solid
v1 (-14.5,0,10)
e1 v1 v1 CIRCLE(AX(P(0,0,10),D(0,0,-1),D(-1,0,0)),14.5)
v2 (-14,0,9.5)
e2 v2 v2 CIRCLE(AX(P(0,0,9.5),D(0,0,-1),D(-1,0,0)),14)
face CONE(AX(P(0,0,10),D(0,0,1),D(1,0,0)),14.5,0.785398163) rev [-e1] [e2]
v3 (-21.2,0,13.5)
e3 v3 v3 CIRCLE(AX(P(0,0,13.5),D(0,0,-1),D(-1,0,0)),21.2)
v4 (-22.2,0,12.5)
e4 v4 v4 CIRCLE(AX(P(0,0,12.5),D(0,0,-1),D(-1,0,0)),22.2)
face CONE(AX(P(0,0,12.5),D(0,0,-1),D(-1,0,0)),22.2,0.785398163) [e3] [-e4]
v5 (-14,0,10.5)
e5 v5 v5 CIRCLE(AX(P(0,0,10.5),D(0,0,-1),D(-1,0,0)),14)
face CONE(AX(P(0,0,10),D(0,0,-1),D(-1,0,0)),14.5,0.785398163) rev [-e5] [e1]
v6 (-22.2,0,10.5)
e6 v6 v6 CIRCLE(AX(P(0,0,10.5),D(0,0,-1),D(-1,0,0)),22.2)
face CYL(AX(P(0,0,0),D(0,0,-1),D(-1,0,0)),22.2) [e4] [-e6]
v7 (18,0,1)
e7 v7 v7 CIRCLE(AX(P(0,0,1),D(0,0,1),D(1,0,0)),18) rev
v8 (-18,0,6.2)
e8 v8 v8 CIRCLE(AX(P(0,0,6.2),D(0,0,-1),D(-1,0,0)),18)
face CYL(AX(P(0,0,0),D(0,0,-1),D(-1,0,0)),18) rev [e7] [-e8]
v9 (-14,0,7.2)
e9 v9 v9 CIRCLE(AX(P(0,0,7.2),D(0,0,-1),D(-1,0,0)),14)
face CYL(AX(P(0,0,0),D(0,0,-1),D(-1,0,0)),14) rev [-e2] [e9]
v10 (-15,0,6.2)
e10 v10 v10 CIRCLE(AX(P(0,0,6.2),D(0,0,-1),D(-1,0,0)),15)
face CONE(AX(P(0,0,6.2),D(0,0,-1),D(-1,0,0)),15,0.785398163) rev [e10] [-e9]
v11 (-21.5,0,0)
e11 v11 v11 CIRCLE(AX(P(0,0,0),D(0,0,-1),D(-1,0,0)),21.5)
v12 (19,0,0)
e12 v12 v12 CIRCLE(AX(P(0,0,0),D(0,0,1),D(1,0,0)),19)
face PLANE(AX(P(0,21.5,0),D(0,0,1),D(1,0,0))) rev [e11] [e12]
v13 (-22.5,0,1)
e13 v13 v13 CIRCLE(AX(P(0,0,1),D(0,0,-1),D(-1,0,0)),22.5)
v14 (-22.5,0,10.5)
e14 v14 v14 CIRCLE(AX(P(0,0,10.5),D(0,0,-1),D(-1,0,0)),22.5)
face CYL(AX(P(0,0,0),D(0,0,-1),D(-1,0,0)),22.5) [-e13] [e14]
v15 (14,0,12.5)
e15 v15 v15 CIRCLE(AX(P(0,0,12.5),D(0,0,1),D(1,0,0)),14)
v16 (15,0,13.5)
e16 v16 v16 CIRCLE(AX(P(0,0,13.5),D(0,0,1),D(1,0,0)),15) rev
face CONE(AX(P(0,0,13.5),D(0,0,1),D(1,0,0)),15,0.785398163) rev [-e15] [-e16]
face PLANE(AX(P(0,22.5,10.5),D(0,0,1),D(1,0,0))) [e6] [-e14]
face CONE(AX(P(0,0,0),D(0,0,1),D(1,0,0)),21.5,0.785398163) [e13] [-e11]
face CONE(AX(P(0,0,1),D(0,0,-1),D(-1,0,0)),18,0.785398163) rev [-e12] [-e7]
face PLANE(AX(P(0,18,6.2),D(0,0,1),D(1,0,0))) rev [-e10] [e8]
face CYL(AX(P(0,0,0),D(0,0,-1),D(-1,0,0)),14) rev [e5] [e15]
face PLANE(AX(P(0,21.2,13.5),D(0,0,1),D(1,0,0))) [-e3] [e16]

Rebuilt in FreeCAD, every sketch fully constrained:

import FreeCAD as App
import Part
import Sketcher
Q = App.Units.Quantity


def edges_at(feature, points):
    """Names of the edges that pass closest to the given points."""
    edges = feature.Shape.Edges
    near = lambda p: min(range(len(edges)), key=lambda i: edges[i].distToShape(Part.Vertex(*p))[0])
    return sorted({f"Edge{near(p) + 1}" for p in points})


def add_polygon(sketch, points):
    """Adds a closed chain of lines whose ends are joined by coincident constraints."""
    first, n = sketch.GeometryCount, len(points)
    for a, b in zip(points, points[1:] + points[:1]):
        sketch.addGeometry(Part.LineSegment(App.Vector(*a, 0), App.Vector(*b, 0)), False)
    for i in range(n):
        sketch.addConstraint(Sketcher.Constraint("Coincident", first + i, 2, first + (i + 1) % n, 1))

doc = App.newDocument("Part")
body = doc.addObject("PartDesign::Body", "Body")

# Sketch on YZ plane
sketch1 = doc.addObject("Sketcher::SketchObject", "Sketch")
body.addObject(sketch1)
sketch1.AttachmentSupport = (doc.YZ_Plane, [""])
sketch1.MapMode = "FlatFace"
add_polygon(sketch1, [(0, 13.5), (0, 0), (21.5, 0), (22.5, 1), (22.5, 10.5), (22.2, 10.5), (22.2, 12.5), (21.2, 13.5)])  # lines 0-7
sketch1.addConstraint([
    Sketcher.Constraint("Vertical", 0),
    Sketcher.Constraint("Horizontal", 1),
    Sketcher.Constraint("Vertical", 3),
    Sketcher.Constraint("Horizontal", 4),
    Sketcher.Constraint("Vertical", 5),
    Sketcher.Constraint("Horizontal", 7),
    Sketcher.Constraint("Coincident", 0, 2, -1, 1),
    Sketcher.Constraint("Perpendicular", 2, 6),
    Sketcher.Constraint("Equal", 2, 6),
    Sketcher.Constraint("DistanceY", 5, 1, 5, 2, 2.0),
    Sketcher.Constraint("Angle", 2, Q("45 deg")),
    Sketcher.Constraint("DistanceX", 1, 1, 1, 2, 21.5),
    Sketcher.Constraint("DistanceX", 4, 2, 4, 1, 0.3),
    Sketcher.Constraint("DistanceY", 0, 2, 0, 1, 13.5),
    Sketcher.Constraint("DistanceY", 3, 1, 3, 2, 9.5),
])
revolution = doc.addObject("PartDesign::Revolution", "Revolution")
body.addObject(revolution)
revolution.Profile = sketch1
revolution.ReferenceAxis = (sketch1, ["V_Axis"])
revolution.Angle = 360

# Sketch on YZ plane
sketch2 = doc.addObject("Sketcher::SketchObject", "Sketch001")
body.addObject(sketch2)
sketch2.AttachmentSupport = (doc.YZ_Plane, [""])
sketch2.MapMode = "FlatFace"
add_polygon(sketch2, [(0, 13.5), (0, 0), (18, 0), (18, 6.2), (15, 6.2), (14, 7.2), (14, 9.5), (14.5, 10), (14, 10.5), (14, 13.5)])  # lines 0-9
sketch2.addConstraint([
    Sketcher.Constraint("Vertical", 0),
    Sketcher.Constraint("Horizontal", 1),
    Sketcher.Constraint("Vertical", 2),
    Sketcher.Constraint("Horizontal", 3),
    Sketcher.Constraint("Vertical", 5),
    Sketcher.Constraint("Vertical", 8),
    Sketcher.Constraint("Horizontal", 9),
    Sketcher.Constraint("Coincident", 0, 2, -1, 1),
    Sketcher.Constraint("Perpendicular", 4, 6),
    Sketcher.Constraint("Perpendicular", 6, 7),
    Sketcher.Constraint("Vertical", 5, 2, 7, 2),
    Sketcher.Constraint("Equal", 3, 8),
    Sketcher.Constraint("Equal", 6, 7),
    Sketcher.Constraint("DistanceX", 1, 1, 1, 2, 18.0),
    Sketcher.Constraint("DistanceX", 3, 2, 3, 1, 3.0),
    Sketcher.Constraint("DistanceX", 9, 2, 9, 1, 14.0),
    Sketcher.Constraint("DistanceY", 0, 2, 0, 1, 13.5),
    Sketcher.Constraint("DistanceY", 2, 1, 2, 2, 6.2),
    Sketcher.Constraint("DistanceY", 5, 1, 5, 2, 2.3),
])
groove = doc.addObject("PartDesign::Groove", "Groove")
body.addObject(groove)
groove.Profile = sketch2
groove.ReferenceAxis = (sketch2, ["V_Axis"])
groove.Angle = 360
doc.recompute()

chamfer = doc.addObject("PartDesign::Chamfer", "Chamfer")
body.addObject(chamfer)
chamfer.Base = (groove, edges_at(groove, [(18, 0, 0), (14, 0, 13.5)]))
chamfer.Size = 1

doc.recompute()
